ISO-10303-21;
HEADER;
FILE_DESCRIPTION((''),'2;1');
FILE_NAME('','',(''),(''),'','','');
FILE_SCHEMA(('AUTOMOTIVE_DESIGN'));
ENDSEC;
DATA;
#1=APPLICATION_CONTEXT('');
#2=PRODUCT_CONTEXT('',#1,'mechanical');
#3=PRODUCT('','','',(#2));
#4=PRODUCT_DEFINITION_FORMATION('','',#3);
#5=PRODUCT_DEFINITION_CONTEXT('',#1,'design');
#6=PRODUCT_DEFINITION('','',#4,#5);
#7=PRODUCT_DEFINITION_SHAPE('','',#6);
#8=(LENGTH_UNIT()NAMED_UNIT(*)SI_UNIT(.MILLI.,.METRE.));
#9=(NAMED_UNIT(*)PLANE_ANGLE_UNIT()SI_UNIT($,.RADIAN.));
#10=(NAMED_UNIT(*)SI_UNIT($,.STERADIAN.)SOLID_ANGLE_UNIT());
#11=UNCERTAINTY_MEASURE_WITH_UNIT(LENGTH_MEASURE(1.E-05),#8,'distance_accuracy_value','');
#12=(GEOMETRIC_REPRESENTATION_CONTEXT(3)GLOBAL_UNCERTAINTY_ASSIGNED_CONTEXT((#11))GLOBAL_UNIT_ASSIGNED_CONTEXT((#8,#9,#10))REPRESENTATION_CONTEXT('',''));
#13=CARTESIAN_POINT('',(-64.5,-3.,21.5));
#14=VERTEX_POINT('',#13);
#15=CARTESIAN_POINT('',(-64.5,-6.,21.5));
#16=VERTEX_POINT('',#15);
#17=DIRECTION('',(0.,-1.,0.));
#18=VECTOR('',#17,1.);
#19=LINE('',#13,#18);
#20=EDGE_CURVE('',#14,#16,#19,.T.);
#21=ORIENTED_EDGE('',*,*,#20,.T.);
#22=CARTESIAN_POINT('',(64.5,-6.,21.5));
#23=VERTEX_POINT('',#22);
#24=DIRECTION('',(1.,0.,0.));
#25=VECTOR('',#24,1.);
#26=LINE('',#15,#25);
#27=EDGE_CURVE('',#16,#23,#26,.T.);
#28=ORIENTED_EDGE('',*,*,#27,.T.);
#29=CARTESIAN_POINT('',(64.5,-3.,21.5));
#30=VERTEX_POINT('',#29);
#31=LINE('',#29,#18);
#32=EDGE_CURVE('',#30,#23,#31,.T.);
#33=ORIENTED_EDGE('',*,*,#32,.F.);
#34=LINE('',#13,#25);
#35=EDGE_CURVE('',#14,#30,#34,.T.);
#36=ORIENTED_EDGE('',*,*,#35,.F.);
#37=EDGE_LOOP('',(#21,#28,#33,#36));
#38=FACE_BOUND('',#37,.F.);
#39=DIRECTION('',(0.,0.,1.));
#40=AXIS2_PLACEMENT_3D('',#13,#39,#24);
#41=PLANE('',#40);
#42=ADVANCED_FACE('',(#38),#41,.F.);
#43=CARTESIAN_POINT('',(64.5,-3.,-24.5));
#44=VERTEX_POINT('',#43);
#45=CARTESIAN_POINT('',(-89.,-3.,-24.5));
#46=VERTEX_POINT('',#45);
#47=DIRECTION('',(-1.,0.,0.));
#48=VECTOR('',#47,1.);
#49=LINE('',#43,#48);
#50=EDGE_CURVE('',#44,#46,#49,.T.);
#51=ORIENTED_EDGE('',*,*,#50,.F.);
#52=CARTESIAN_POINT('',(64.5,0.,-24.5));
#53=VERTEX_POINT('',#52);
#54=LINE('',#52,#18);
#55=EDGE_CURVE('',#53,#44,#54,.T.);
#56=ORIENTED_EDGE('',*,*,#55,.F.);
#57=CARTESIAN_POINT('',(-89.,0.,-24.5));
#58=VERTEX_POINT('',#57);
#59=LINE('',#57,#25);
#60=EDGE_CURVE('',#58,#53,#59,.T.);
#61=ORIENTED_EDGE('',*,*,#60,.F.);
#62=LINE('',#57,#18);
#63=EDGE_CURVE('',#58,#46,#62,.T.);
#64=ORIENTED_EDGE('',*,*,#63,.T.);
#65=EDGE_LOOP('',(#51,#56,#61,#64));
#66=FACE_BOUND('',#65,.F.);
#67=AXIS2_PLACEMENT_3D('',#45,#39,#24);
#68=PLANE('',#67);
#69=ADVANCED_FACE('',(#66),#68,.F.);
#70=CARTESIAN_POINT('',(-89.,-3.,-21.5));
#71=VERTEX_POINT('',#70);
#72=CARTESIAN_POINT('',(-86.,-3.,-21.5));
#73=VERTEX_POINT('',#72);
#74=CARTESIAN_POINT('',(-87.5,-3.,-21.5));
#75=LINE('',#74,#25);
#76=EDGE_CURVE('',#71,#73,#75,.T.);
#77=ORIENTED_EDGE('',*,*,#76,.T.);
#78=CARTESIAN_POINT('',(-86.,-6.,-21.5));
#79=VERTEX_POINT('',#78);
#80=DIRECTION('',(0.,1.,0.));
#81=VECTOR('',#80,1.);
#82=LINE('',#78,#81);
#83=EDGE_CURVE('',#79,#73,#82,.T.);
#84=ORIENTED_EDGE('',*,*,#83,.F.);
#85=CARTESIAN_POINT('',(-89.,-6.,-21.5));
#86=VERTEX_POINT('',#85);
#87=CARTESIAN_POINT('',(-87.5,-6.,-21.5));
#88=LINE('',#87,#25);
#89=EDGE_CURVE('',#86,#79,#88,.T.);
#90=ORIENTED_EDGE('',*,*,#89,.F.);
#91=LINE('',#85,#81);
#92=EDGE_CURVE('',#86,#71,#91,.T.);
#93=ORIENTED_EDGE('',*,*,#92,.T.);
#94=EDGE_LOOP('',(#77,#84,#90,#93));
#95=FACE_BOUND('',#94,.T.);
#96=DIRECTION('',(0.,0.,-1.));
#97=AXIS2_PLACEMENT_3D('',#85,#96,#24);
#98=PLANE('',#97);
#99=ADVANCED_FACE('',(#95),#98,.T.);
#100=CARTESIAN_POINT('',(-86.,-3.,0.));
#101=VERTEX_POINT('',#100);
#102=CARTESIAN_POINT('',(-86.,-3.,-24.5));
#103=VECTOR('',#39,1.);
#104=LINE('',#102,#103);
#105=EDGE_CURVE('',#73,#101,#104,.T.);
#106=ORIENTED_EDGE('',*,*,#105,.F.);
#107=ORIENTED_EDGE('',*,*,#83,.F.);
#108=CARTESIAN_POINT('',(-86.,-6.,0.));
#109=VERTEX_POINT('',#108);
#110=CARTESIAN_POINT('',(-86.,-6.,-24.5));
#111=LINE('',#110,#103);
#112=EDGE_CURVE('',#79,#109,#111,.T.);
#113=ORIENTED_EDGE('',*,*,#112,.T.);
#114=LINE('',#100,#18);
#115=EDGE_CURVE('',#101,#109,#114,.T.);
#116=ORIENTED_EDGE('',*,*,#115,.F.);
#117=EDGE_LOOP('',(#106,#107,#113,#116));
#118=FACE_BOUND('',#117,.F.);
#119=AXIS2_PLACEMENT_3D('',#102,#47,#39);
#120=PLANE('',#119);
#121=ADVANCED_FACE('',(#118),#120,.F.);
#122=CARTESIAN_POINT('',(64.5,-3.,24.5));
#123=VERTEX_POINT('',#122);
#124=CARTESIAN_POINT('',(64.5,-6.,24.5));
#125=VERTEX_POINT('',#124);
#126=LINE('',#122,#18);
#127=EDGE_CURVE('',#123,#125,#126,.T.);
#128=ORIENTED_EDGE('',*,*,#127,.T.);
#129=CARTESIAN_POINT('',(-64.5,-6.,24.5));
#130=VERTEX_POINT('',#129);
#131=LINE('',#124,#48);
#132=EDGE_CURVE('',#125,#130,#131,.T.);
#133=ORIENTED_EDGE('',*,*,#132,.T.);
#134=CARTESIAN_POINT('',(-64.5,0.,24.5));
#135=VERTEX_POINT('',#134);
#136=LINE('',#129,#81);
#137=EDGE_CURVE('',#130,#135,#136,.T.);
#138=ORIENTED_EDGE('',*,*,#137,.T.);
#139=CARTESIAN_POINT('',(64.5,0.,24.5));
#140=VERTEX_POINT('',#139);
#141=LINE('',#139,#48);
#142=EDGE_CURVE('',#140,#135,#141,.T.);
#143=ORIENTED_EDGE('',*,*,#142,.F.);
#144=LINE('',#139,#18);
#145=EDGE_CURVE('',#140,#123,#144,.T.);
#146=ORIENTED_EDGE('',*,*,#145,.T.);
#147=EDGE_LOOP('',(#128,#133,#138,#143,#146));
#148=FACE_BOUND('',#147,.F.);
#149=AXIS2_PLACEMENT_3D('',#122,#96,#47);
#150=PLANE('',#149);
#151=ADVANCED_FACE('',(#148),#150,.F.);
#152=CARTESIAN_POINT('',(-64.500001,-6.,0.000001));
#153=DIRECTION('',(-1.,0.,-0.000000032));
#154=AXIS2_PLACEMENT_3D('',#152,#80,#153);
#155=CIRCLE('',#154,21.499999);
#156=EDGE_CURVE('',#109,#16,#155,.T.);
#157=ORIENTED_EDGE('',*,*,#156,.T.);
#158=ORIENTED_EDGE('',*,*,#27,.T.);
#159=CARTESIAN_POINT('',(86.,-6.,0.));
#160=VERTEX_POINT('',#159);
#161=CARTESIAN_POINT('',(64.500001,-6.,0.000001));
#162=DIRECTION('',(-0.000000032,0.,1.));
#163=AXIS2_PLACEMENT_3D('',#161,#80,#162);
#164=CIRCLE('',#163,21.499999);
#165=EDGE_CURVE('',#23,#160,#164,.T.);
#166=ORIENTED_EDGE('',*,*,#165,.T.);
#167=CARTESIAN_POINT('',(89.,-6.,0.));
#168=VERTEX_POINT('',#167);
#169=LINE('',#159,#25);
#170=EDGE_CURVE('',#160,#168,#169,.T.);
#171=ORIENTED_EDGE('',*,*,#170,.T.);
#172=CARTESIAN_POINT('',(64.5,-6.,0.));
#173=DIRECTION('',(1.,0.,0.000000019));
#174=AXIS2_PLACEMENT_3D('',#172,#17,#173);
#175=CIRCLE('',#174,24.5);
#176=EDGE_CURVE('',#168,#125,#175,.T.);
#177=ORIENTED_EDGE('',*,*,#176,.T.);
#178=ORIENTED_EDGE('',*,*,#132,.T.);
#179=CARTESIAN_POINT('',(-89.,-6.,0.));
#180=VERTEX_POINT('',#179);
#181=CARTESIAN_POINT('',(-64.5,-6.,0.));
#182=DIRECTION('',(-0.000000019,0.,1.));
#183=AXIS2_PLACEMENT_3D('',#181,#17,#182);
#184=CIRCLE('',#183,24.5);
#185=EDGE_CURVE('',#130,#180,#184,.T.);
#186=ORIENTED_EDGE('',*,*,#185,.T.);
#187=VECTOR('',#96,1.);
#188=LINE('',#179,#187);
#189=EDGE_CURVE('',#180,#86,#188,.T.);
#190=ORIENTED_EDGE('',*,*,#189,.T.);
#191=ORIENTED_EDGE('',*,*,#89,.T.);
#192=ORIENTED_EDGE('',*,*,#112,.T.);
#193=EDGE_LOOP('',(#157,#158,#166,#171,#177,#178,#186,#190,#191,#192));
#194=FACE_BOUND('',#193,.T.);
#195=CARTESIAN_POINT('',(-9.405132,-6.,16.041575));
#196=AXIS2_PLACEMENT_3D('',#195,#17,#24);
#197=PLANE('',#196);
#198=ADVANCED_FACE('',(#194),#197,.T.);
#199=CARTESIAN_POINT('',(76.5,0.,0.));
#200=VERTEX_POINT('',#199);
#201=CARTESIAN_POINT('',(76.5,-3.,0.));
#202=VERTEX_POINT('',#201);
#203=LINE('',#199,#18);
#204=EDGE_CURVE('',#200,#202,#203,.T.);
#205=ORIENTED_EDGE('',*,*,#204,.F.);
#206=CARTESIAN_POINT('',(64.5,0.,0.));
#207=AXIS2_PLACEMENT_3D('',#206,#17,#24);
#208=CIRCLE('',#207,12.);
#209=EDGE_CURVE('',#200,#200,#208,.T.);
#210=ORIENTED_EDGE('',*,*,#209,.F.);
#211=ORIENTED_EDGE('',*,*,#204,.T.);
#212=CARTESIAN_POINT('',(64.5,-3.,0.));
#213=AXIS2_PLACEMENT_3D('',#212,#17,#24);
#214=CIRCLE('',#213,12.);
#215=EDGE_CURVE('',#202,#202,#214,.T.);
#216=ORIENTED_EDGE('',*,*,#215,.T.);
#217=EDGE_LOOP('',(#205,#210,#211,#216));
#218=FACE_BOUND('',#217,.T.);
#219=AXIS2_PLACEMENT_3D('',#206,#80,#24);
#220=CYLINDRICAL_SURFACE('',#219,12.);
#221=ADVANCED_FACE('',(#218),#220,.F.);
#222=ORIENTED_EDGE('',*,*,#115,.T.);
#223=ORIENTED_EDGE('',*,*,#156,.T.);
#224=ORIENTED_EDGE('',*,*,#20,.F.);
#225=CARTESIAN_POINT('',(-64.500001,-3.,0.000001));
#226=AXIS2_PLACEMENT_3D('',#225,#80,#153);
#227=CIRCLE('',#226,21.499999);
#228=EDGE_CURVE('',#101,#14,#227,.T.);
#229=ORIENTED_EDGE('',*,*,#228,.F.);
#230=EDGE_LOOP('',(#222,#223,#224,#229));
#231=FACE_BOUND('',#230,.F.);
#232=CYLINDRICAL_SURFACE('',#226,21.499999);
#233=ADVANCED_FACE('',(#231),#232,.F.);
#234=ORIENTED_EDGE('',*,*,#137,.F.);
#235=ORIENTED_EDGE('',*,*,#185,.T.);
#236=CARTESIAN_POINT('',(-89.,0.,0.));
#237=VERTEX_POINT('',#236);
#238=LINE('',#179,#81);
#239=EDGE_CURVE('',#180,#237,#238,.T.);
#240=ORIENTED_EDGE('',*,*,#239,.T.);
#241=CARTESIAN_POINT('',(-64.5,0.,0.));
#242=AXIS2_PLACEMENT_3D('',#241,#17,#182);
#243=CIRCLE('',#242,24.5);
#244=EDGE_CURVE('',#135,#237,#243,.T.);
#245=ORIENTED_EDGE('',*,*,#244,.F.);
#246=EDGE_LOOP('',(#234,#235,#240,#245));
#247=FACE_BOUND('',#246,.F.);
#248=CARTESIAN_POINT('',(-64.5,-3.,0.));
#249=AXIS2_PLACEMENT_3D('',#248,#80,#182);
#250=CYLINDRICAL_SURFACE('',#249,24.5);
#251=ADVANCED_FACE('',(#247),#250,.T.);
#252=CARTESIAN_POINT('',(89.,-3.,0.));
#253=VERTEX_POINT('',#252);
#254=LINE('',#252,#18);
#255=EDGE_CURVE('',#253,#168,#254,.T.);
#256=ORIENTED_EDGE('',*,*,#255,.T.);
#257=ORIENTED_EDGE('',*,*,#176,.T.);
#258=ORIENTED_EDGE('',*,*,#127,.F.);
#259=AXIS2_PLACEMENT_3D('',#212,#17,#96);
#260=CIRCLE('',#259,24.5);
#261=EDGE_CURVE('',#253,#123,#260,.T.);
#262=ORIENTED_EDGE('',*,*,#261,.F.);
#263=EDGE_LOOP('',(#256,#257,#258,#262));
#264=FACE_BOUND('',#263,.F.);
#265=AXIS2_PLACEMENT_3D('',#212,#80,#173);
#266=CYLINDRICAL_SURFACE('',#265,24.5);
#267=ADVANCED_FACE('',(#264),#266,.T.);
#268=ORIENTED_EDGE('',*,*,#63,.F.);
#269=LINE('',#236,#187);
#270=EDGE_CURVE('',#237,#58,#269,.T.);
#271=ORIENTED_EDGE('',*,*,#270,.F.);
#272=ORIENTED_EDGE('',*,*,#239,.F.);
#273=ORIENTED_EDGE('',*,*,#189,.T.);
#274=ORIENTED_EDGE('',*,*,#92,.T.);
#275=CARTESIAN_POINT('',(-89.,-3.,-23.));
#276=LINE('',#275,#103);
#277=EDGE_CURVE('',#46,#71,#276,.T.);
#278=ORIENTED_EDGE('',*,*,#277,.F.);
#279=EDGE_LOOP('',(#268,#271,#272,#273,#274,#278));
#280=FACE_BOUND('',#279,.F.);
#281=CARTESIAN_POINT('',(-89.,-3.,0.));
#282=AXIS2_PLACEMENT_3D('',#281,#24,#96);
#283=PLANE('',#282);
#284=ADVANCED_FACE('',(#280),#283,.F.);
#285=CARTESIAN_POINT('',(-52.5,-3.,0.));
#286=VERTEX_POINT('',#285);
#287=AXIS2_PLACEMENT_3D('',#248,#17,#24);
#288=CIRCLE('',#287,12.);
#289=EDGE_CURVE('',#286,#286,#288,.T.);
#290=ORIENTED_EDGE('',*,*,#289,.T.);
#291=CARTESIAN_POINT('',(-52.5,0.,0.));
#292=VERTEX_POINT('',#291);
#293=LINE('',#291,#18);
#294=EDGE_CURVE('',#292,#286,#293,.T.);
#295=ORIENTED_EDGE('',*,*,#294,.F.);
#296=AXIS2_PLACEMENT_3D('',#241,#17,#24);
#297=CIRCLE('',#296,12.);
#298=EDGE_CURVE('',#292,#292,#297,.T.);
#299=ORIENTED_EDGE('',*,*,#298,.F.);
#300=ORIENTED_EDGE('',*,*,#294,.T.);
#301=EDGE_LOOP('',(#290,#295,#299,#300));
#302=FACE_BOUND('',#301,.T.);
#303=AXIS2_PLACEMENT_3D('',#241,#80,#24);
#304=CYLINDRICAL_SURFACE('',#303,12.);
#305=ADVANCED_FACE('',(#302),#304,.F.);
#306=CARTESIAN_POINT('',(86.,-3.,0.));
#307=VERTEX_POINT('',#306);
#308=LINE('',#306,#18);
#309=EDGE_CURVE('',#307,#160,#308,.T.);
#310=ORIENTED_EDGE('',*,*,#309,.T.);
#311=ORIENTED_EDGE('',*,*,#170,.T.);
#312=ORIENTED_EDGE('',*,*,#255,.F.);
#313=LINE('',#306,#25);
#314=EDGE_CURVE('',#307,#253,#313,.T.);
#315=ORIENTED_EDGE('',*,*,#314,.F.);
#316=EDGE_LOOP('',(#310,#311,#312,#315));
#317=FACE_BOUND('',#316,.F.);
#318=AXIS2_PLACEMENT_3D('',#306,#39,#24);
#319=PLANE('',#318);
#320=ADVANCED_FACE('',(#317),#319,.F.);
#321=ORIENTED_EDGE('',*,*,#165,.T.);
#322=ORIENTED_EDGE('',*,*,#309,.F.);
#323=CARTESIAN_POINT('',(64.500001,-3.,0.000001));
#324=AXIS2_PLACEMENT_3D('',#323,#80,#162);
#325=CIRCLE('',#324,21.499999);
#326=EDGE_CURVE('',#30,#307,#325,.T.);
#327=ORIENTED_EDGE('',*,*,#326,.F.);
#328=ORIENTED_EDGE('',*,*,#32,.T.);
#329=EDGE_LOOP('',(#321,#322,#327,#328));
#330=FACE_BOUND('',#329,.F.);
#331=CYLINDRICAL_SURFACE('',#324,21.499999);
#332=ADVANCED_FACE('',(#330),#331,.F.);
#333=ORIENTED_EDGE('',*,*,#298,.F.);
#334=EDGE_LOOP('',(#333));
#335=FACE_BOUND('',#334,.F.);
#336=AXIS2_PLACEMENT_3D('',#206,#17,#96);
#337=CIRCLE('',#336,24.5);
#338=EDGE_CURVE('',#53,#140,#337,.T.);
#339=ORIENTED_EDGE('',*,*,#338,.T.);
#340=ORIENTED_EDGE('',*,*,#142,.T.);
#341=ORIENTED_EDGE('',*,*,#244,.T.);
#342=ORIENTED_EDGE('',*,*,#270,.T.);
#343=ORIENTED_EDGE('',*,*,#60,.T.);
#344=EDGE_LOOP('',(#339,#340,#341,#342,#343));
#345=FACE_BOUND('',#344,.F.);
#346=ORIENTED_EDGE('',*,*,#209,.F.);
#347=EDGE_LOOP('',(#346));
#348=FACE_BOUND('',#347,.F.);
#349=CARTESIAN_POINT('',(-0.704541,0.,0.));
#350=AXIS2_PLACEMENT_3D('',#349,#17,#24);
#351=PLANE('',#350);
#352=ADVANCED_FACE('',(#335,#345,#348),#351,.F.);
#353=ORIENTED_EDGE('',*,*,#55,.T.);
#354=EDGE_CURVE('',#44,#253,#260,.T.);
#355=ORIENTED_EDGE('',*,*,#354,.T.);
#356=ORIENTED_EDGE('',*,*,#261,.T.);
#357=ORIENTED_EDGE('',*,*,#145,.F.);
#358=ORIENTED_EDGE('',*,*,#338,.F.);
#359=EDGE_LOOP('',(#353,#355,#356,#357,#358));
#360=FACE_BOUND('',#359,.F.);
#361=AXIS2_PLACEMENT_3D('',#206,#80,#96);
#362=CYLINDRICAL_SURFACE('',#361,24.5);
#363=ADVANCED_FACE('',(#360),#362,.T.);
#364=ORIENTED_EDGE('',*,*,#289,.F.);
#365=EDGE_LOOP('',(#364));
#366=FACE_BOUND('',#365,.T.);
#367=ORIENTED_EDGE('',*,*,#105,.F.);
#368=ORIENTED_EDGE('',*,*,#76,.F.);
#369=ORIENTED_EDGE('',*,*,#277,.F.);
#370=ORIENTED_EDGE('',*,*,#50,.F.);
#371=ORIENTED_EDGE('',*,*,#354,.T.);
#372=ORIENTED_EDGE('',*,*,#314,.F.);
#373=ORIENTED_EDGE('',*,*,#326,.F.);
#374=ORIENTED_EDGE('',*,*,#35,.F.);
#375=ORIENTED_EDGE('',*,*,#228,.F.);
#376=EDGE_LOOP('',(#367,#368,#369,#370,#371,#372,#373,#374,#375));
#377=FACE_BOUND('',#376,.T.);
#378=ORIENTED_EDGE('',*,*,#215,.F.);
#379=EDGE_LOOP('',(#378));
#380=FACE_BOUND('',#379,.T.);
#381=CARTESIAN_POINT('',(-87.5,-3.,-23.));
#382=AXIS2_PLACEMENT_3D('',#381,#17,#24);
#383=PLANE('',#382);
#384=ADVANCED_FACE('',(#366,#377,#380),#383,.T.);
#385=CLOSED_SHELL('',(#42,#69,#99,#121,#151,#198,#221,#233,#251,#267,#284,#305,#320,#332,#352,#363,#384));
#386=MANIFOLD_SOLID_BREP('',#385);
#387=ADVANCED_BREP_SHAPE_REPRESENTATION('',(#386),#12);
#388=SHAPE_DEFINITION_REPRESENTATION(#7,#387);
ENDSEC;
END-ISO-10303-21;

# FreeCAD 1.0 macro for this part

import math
import FreeCAD as App
import Part
import Sketcher

doc = App.newDocument("Part")
body = doc.addObject("PartDesign::Body", "Body")

# Sketch on XZ plane
sketch1 = body.newObject("Sketcher::SketchObject", "Sketch")
sketch1.AttachmentSupport = (doc.getObject("XZ_Plane"), [""])
sketch1.MapMode = "FlatFace"
sketch1.addGeometry([
    Part.ArcOfCircle(Part.Circle(App.Vector(64, 0, 0), App.Vector(0, 0, 1), 24), math.radians(-90), math.radians(90)),  # 0
    Part.LineSegment(App.Vector(64, 24, 0), App.Vector(-64, 24, 0)),  # 1
    Part.ArcOfCircle(Part.Circle(App.Vector(-64, 0, 0), App.Vector(0, 0, 1), 25), math.radians(90), math.radians(180)),  # 2
    Part.LineSegment(App.Vector(-89, 0, 0), App.Vector(-89, -24, 0)),  # 3
    Part.LineSegment(App.Vector(-89, -24, 0), App.Vector(64, -24, 0)),  # 4
    Part.Circle(App.Vector(-64, 0, 0), App.Vector(0, 0, 1), 12),  # 5
    Part.Circle(App.Vector(64, 0, 0), App.Vector(0, 0, 1), 12),  # 6
], False)
sketch1.addConstraint([
    Sketcher.Constraint("Tangent", 0, 2, 1, 1),
    Sketcher.Constraint("Tangent", 1, 2, 2, 1),
    Sketcher.Constraint("Tangent", 2, 2, 3, 1),
    Sketcher.Constraint("Coincident", 3, 2, 4, 1),
    Sketcher.Constraint("Tangent", 4, 2, 0, 1),
    Sketcher.Constraint("Horizontal", 1),
    Sketcher.Constraint("Vertical", 3),
    Sketcher.Constraint("Horizontal", 4),
    Sketcher.Constraint("Coincident", 5, 3, 2, 3),
    Sketcher.Constraint("Coincident", 6, 3, 0, 3),
    Sketcher.Constraint("Equal", 0, 2),
    Sketcher.Constraint("Equal", 5, 6),
    Sketcher.Constraint("Symmetric", 0, 3, 2, 3, -1, 1),
    Sketcher.Constraint("Diameter", 5, 24.0),
    Sketcher.Constraint("Radius", 0, 24.5),
    Sketcher.Constraint("DistanceX", 1, 2, 1, 1, 129.0),
])
pad1 = body.newObject("PartDesign::Pad", "Pad")
pad1.Profile = sketch1
pad1.Length = 3

# Sketch on XZ plane
sketch2 = body.newObject("Sketcher::SketchObject", "Sketch001")
sketch2.AttachmentSupport = (doc.getObject("XZ_Plane"), [""])
sketch2.MapMode = "FlatFace"
sketch2.AttachmentOffset = App.Placement(App.Vector(0, 0, 3), App.Rotation())
sketch2.addGeometry([
    Part.LineSegment(App.Vector(-89, 0, 0), App.Vector(-89, -24.5, 0)),  # 0
    Part.LineSegment(App.Vector(-89, -24.5, 0), App.Vector(-86, -24.5, 0)),  # 1
    Part.LineSegment(App.Vector(-86, -24.5, 0), App.Vector(-86, 0, 0)),  # 2
    Part.ArcOfCircle(Part.Circle(App.Vector(-64.5, 0, 0), App.Vector(0, 0, 1), 21.5), math.radians(90), math.radians(180)),  # 3
    Part.LineSegment(App.Vector(-64.5, 21.5, 0), App.Vector(64.5, 21.5, 0)),  # 4
    Part.ArcOfCircle(Part.Circle(App.Vector(64.5, 0, 0), App.Vector(0, 0, 1), 21.5), math.radians(0), math.radians(90)),  # 5
    Part.LineSegment(App.Vector(86, 0, 0), App.Vector(89, 0, 0)),  # 6
    Part.ArcOfCircle(Part.Circle(App.Vector(64.5, 0, 0), App.Vector(0, 0, 1), 24.5), math.radians(0), math.radians(90)),  # 7
    Part.LineSegment(App.Vector(64.5, 24.5, 0), App.Vector(-64.5, 24.5, 0)),  # 8
    Part.ArcOfCircle(Part.Circle(App.Vector(-64.5, 0, 0), App.Vector(0, 0, 1), 24.5), math.radians(90), math.radians(180)),  # 9
], False)
sketch2.addConstraint([
    Sketcher.Constraint("Coincident", 0, 2, 1, 1),
    Sketcher.Constraint("Coincident", 1, 2, 2, 1),
    Sketcher.Constraint("Tangent", 2, 2, 3, 2),
    Sketcher.Constraint("Tangent", 3, 1, 4, 1),
    Sketcher.Constraint("Tangent", 4, 2, 5, 2),
    Sketcher.Constraint("Coincident", 5, 1, 6, 1),
    Sketcher.Constraint("Coincident", 6, 2, 7, 1),
    Sketcher.Constraint("Tangent", 7, 2, 8, 1),
    Sketcher.Constraint("Tangent", 8, 2, 9, 1),
    Sketcher.Constraint("Tangent", 9, 2, 0, 1),
    Sketcher.Constraint("Vertical", 0),
    Sketcher.Constraint("Horizontal", 1),
    Sketcher.Constraint("Vertical", 2),
    Sketcher.Constraint("Horizontal", 4),
    Sketcher.Constraint("Horizontal", 6),
    Sketcher.Constraint("Horizontal", 8),
    Sketcher.Constraint("Coincident", 7, 3, 5, 3),
    Sketcher.Constraint("Coincident", 9, 3, 3, 3),
    Sketcher.Constraint("Equal", 3, 5),
    Sketcher.Constraint("Symmetric", 3, 3, 5, 3, -1, 1),
    Sketcher.Constraint("PointOnObject", 5, 1, -1),
    Sketcher.Constraint("Radius", 3, 21.499999),
    Sketcher.Constraint("Radius", 7, 24.5),
    Sketcher.Constraint("DistanceX", 4, 1, 4, 2, 129.0),
    Sketcher.Constraint("DistanceY", 0, 2, 0, 1, 24.5),
])
pad2 = body.newObject("PartDesign::Pad", "Pad001")
pad2.Profile = sketch2
pad2.Length = 3

# Sketch on XZ plane
sketch3 = body.newObject("Sketcher::SketchObject", "Sketch002")
sketch3.AttachmentSupport = (doc.getObject("XZ_Plane"), [""])
sketch3.MapMode = "FlatFace"
sketch3.AttachmentOffset = App.Placement(App.Vector(0, 0, 6), App.Rotation())
sketch3.addGeometry([
    Part.LineSegment(App.Vector(-89, -21.5, 0), App.Vector(-89, -24.5, 0)),
    Part.LineSegment(App.Vector(-89, -24.5, 0), App.Vector(-86, -24.5, 0)),
    Part.LineSegment(App.Vector(-86, -24.5, 0), App.Vector(-86, -21.5, 0)),
    Part.LineSegment(App.Vector(-86, -21.5, 0), App.Vector(-89, -21.5, 0)),
], False)
sketch3.addConstraint([
    Sketcher.Constraint("Coincident", 0, 2, 1, 1),
    Sketcher.Constraint("Coincident", 1, 2, 2, 1),
    Sketcher.Constraint("Coincident", 2, 2, 3, 1),
    Sketcher.Constraint("Coincident", 3, 2, 0, 1),
    Sketcher.Constraint("Vertical", 0),
    Sketcher.Constraint("Horizontal", 1),
    Sketcher.Constraint("Vertical", 2),
    Sketcher.Constraint("Horizontal", 3),
    Sketcher.Constraint("Equal", 3, 0),
    Sketcher.Constraint("DistanceX", 1, 1, 1, 2, 3.0),
    Sketcher.Constraint("DistanceX", 0, 2, -1, 1, 89.0),
    Sketcher.Constraint("DistanceY", 0, 2, -1, 1, 24.5),
])
pocket1 = body.newObject("PartDesign::Pocket", "Pocket")
pocket1.Profile = sketch3
pocket1.Length = 3

doc.recompute()
